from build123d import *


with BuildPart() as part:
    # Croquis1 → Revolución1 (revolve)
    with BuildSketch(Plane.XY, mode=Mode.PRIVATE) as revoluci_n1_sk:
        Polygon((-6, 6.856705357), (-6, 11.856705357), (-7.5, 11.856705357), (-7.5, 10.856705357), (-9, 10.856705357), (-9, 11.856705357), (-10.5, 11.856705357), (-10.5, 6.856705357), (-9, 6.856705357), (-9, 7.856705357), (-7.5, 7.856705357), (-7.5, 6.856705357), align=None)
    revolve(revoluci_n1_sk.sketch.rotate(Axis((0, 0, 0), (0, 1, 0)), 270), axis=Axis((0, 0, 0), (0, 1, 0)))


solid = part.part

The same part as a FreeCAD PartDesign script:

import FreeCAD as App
import Part
import Sketcher
from FreeCAD import Vector
Q = App.Units.Quantity

doc = App.newDocument("Part")
body = doc.addObject("PartDesign::Body", "Body")

sketch1 = body.newObject("Sketcher::SketchObject", "Sketch")
sketch1.AttachmentSupport = (doc.getObject("XY_Plane"), [""])
sketch1.MapMode = "FlatFace"
sketch1.addGeometry(Part.LineSegment(Vector(-6, 6.9, 0), Vector(-6, 11.9, 0)), False)
sketch1.addGeometry(Part.LineSegment(Vector(-6, 11.9, 0), Vector(-7.5, 11.9, 0)), False)
sketch1.addGeometry(Part.LineSegment(Vector(-7.5, 11.9, 0), Vector(-7.5, 10.9, 0)), False)
sketch1.addGeometry(Part.LineSegment(Vector(-7.5, 10.9, 0), Vector(-9, 10.9, 0)), False)
sketch1.addGeometry(Part.LineSegment(Vector(-9, 10.9, 0), Vector(-9, 11.9, 0)), False)
sketch1.addGeometry(Part.LineSegment(Vector(-9, 11.9, 0), Vector(-10.5, 11.9, 0)), False)
sketch1.addGeometry(Part.LineSegment(Vector(-10.5, 11.9, 0), Vector(-10.5, 6.9, 0)), False)
sketch1.addGeometry(Part.LineSegment(Vector(-10.5, 6.9, 0), Vector(-9, 6.9, 0)), False)
sketch1.addGeometry(Part.LineSegment(Vector(-9, 6.9, 0), Vector(-9, 7.9, 0)), False)
sketch1.addGeometry(Part.LineSegment(Vector(-9, 7.9, 0), Vector(-7.5, 7.9, 0)), False)
sketch1.addGeometry(Part.LineSegment(Vector(-7.5, 7.9, 0), Vector(-7.5, 6.9, 0)), False)
sketch1.addGeometry(Part.LineSegment(Vector(-7.5, 6.9, 0), Vector(-6, 6.9, 0)), False)
sketch1.addConstraint(Sketcher.Constraint("Coincident", 0, 2, 1, 1))
sketch1.addConstraint(Sketcher.Constraint("Coincident", 1, 2, 2, 1))
sketch1.addConstraint(Sketcher.Constraint("Coincident", 2, 2, 3, 1))
sketch1.addConstraint(Sketcher.Constraint("Coincident", 3, 2, 4, 1))
sketch1.addConstraint(Sketcher.Constraint("Coincident", 4, 2, 5, 1))
sketch1.addConstraint(Sketcher.Constraint("Coincident", 5, 2, 6, 1))
sketch1.addConstraint(Sketcher.Constraint("Coincident", 6, 2, 7, 1))
sketch1.addConstraint(Sketcher.Constraint("Coincident", 7, 2, 8, 1))
sketch1.addConstraint(Sketcher.Constraint("Coincident", 8, 2, 9, 1))
sketch1.addConstraint(Sketcher.Constraint("Coincident", 9, 2, 10, 1))
sketch1.addConstraint(Sketcher.Constraint("Coincident", 10, 2, 11, 1))
sketch1.addConstraint(Sketcher.Constraint("Coincident", 11, 2, 0, 1))
sketch1.addConstraint(Sketcher.Constraint("Vertical", 0))
sketch1.addConstraint(Sketcher.Constraint("Horizontal", 1))
sketch1.addConstraint(Sketcher.Constraint("Vertical", 2))
sketch1.addConstraint(Sketcher.Constraint("Horizontal", 3))
sketch1.addConstraint(Sketcher.Constraint("Vertical", 4))
sketch1.addConstraint(Sketcher.Constraint("Horizontal", 5))
sketch1.addConstraint(Sketcher.Constraint("Vertical", 6))
sketch1.addConstraint(Sketcher.Constraint("Horizontal", 7))
sketch1.addConstraint(Sketcher.Constraint("Vertical", 8))
sketch1.addConstraint(Sketcher.Constraint("Horizontal", 9))
sketch1.addConstraint(Sketcher.Constraint("Vertical", 10))
sketch1.addConstraint(Sketcher.Constraint("Horizontal", 11))
sketch1.addConstraint(Sketcher.Constraint("Horizontal", 1, 2, 4, 2))
sketch1.addConstraint(Sketcher.Constraint("Horizontal", 7, 2, 10, 2))
sketch1.addConstraint(Sketcher.Constraint("Vertical", 4, 2, 7, 2))
sketch1.addConstraint(Sketcher.Constraint("Vertical", 2, 2, 9, 2))
sketch1.addConstraint(Sketcher.Constraint("Equal", 1, 3))
sketch1.addConstraint(Sketcher.Constraint("Equal", 3, 5))
sketch1.addConstraint(Sketcher.Constraint("Equal", 4, 8))
sketch1.addConstraint(Sketcher.Constraint("DistanceY", 0, 1, 0, 2, Q("5 mm")))
sketch1.addConstraint(Sketcher.Constraint("DistanceY", 2, 2, 2, 1, Q("1 mm")))
sketch1.addConstraint(Sketcher.Constraint("DistanceX", 1, 2, 1, 1, Q("1.5 mm")))
sketch1.addConstraint(Sketcher.Constraint("DistanceX", 0, 2, -1, 1, Q("6 mm")))
sketch1.addConstraint(Sketcher.Constraint("DistanceY", -1, 1, 0, 2, Q("11.856705 mm")))
revolution = body.newObject("PartDesign::Revolution", "Revolution")
revolution.Profile = sketch1
revolution.ReferenceAxis = (sketch1, ["V_Axis"])
revolution.Angle = 360

doc.recompute()
